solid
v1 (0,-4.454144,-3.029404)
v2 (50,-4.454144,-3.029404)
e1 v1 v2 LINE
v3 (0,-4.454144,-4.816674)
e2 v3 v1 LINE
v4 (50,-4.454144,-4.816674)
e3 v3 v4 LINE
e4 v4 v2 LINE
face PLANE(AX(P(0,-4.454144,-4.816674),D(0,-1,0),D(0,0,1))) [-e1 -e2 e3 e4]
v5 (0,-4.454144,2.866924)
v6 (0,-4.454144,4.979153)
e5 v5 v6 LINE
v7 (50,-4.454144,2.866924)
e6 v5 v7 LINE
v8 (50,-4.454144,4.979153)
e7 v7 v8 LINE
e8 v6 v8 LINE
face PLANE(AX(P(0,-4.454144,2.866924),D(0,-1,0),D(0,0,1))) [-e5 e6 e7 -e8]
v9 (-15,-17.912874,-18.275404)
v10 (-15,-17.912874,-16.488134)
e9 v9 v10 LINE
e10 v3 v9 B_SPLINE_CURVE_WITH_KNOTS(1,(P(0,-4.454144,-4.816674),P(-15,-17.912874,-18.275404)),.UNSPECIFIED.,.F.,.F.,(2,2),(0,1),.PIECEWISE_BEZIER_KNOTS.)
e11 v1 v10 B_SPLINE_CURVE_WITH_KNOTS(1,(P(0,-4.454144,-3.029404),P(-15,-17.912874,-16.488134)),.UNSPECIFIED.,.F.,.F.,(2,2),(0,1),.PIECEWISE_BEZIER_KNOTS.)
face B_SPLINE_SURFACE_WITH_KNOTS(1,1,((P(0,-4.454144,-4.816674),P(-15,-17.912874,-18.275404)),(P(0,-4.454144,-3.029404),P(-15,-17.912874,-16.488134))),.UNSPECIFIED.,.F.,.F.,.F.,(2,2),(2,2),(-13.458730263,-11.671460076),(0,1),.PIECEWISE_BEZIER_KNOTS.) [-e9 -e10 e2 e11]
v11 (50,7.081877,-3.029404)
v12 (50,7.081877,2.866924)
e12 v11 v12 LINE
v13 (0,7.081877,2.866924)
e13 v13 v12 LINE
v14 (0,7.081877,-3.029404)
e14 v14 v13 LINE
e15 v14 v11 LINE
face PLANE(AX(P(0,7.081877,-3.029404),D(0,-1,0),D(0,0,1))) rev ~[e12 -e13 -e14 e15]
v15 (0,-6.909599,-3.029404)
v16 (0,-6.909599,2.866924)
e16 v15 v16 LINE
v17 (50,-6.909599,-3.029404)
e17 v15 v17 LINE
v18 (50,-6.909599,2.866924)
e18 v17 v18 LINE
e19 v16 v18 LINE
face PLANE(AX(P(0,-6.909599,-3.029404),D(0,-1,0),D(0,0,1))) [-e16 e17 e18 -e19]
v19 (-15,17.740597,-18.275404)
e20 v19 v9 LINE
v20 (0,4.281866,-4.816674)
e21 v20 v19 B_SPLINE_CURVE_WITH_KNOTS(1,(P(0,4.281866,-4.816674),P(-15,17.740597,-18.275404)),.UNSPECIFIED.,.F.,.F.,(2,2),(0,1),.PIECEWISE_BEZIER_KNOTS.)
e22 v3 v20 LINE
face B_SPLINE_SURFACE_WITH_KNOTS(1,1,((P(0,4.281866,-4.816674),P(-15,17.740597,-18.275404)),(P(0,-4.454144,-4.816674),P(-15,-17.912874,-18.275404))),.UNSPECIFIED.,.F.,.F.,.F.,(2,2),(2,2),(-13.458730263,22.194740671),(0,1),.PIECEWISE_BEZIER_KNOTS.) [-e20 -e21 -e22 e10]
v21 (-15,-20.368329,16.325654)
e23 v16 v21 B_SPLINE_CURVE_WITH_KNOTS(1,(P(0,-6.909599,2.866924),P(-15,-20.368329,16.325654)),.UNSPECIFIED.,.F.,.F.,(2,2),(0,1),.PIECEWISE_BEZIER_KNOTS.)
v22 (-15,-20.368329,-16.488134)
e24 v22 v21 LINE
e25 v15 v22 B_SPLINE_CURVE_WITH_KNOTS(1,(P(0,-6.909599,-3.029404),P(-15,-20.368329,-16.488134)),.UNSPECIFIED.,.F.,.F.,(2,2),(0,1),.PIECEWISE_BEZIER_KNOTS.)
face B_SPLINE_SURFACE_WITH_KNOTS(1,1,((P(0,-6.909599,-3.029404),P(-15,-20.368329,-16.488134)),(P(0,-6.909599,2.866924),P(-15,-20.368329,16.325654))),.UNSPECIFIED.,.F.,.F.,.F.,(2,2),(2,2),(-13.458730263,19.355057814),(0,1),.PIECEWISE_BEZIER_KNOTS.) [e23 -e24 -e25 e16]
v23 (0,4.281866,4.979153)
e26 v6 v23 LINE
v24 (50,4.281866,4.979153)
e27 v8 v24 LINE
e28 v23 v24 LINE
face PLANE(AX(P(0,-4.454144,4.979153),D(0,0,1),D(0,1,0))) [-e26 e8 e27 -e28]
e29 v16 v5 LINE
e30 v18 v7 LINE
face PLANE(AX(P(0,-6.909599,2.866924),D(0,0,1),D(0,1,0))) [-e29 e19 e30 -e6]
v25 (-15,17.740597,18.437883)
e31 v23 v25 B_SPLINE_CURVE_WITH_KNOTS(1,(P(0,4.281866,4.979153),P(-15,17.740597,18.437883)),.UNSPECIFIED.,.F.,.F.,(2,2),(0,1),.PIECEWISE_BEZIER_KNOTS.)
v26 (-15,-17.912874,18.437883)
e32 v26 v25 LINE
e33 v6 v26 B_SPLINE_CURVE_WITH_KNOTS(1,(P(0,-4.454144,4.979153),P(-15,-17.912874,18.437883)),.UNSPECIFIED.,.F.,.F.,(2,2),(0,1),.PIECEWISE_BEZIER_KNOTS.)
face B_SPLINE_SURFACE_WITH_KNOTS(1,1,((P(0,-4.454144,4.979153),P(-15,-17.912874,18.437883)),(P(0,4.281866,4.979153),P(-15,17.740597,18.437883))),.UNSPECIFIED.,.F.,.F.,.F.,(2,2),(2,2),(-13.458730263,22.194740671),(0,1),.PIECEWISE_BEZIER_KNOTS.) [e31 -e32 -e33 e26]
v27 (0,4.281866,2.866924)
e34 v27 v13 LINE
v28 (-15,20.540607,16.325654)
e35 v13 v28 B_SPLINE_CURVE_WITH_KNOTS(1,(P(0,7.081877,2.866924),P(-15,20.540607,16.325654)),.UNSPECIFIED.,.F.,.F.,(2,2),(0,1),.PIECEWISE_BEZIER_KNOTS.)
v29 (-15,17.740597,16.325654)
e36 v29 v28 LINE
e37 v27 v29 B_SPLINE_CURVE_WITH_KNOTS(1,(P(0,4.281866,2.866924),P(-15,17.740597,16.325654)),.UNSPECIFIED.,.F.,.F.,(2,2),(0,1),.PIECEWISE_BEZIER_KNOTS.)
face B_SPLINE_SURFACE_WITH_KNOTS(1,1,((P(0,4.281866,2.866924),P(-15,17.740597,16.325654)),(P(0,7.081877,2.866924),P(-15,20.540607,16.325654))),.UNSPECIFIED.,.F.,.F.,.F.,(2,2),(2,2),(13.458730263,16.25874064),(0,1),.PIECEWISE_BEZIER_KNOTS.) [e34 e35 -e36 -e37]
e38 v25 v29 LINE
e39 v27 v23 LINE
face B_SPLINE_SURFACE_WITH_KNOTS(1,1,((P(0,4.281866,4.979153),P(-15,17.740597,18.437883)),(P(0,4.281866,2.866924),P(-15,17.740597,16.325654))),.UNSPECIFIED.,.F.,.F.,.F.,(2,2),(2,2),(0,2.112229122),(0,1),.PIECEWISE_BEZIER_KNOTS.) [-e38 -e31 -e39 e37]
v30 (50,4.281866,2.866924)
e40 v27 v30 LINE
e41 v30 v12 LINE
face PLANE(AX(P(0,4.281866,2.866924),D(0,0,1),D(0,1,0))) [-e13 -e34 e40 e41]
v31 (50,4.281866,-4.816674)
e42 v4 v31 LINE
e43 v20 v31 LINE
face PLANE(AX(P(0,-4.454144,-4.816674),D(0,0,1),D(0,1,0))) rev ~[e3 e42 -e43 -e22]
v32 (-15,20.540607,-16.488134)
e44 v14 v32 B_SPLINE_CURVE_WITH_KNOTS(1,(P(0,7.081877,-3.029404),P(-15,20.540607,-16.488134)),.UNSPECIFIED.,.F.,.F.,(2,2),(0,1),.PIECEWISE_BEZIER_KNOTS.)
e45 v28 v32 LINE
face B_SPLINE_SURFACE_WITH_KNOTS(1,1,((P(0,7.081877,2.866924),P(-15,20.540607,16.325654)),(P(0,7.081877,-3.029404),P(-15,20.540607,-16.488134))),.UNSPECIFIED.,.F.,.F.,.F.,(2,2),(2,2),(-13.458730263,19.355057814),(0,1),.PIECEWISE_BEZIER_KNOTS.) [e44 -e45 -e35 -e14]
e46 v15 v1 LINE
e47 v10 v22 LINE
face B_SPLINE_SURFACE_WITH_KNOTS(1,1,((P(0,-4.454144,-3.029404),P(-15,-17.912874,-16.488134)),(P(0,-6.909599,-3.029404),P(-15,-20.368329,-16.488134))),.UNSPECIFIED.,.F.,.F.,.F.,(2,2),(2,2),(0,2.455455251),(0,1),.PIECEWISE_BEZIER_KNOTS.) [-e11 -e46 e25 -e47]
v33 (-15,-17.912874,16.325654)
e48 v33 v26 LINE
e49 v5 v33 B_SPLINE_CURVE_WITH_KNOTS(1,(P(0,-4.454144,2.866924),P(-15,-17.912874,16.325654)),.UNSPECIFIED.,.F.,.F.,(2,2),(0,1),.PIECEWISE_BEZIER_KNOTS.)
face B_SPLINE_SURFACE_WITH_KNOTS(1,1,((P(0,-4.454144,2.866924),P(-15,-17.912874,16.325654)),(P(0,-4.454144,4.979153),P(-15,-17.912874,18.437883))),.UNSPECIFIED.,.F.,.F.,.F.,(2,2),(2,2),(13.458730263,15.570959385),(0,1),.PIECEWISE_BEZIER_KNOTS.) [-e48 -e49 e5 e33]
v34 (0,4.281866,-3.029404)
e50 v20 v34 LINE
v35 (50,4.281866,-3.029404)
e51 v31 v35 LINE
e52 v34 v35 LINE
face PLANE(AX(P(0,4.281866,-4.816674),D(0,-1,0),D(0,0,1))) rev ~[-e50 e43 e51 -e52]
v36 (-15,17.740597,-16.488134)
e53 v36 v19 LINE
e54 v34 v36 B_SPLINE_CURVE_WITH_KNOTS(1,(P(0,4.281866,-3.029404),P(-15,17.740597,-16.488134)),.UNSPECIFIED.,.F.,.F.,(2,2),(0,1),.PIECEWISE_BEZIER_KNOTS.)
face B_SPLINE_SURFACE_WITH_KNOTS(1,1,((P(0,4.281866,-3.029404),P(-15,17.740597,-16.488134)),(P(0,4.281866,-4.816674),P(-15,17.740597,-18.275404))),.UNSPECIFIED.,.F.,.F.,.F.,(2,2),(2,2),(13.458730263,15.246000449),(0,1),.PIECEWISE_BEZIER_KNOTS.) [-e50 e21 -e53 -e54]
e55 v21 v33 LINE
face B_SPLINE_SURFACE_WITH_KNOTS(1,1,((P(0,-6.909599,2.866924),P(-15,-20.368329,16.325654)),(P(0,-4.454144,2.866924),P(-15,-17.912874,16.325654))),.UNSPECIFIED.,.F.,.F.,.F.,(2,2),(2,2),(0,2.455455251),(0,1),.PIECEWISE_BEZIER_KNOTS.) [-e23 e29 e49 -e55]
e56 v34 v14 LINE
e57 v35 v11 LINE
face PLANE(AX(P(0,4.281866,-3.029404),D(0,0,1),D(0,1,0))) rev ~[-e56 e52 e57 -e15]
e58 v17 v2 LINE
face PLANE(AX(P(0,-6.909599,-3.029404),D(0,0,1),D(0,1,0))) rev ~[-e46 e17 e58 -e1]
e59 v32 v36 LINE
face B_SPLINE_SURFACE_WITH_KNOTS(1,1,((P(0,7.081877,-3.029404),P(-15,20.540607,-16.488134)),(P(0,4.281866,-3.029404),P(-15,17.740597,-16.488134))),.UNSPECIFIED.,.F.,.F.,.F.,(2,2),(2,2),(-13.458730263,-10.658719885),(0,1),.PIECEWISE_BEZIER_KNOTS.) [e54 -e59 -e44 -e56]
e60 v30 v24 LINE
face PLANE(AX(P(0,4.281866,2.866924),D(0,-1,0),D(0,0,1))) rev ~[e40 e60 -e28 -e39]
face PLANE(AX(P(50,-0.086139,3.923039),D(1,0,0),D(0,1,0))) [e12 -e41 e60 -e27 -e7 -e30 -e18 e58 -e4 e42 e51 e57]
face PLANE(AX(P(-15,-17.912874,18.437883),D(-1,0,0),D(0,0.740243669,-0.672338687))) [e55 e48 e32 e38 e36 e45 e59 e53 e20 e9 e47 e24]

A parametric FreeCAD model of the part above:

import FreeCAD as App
import Part
import Sketcher
from FreeCAD import Vector
Q = App.Units.Quantity

doc = App.newDocument("Part")
params = doc.addObject("Spreadsheet::Sheet", "Params")
for row, (alias, value) in enumerate([
    ("pad1_length", "50 mm"),
    ("pad2_length", "15 mm"),
    ("pad2_taper", "41.9 deg"),
], start=1):
    params.set(f"A{row}", alias)
    params.set(f"B{row}", "=" + value)
    params.setAlias(f"B{row}", alias)

body = doc.addObject("PartDesign::Body", "Body")

sketch1 = doc.addObject("Sketcher::SketchObject", "Sketch")
body.addObject(sketch1)
sketch1.AttachmentSupport = (doc.YZ_Plane, [""])
sketch1.MapMode = "FlatFace"
sketch1.addGeometry([
    Part.LineSegment(Vector(-4.454144, 4.979153, 0), Vector(-4.454144, 2.866924, 0)),
    Part.LineSegment(Vector(-4.454144, 2.866924, 0), Vector(-6.909599, 2.866924, 0)),
    Part.LineSegment(Vector(-6.909599, 2.866924, 0), Vector(-6.909599, -3.029404, 0)),
    Part.LineSegment(Vector(-6.909599, -3.029404, 0), Vector(-4.454144, -3.029404, 0)),
    Part.LineSegment(Vector(-4.454144, -3.029404, 0), Vector(-4.454144, -4.816674, 0)),
    Part.LineSegment(Vector(-4.454144, -4.816674, 0), Vector(4.281866, -4.816674, 0)),
    Part.LineSegment(Vector(4.281866, -4.816674, 0), Vector(4.281866, -3.029404, 0)),
    Part.LineSegment(Vector(4.281866, -3.029404, 0), Vector(7.081877, -3.029404, 0)),
    Part.LineSegment(Vector(7.081877, -3.029404, 0), Vector(7.081877, 2.866924, 0)),
    Part.LineSegment(Vector(7.081877, 2.866924, 0), Vector(4.281866, 2.866924, 0)),
    Part.LineSegment(Vector(4.281866, 2.866924, 0), Vector(4.281866, 4.979153, 0)),
    Part.LineSegment(Vector(4.281866, 4.979153, 0), Vector(-4.454144, 4.979153, 0)),
], False)
sketch1.addConstraint([
    Sketcher.Constraint("Coincident", 0, 2, 1, 1),
    Sketcher.Constraint("Coincident", 1, 2, 2, 1),
    Sketcher.Constraint("Coincident", 2, 2, 3, 1),
    Sketcher.Constraint("Coincident", 3, 2, 4, 1),
    Sketcher.Constraint("Coincident", 4, 2, 5, 1),
    Sketcher.Constraint("Coincident", 5, 2, 6, 1),
    Sketcher.Constraint("Coincident", 6, 2, 7, 1),
    Sketcher.Constraint("Coincident", 7, 2, 8, 1),
    Sketcher.Constraint("Coincident", 8, 2, 9, 1),
    Sketcher.Constraint("Coincident", 9, 2, 10, 1),
    Sketcher.Constraint("Coincident", 10, 2, 11, 1),
    Sketcher.Constraint("Coincident", 11, 2, 0, 1),
    Sketcher.Constraint("Vertical", 0),
    Sketcher.Constraint("Horizontal", 1),
    Sketcher.Constraint("Vertical", 2),
    Sketcher.Constraint("Horizontal", 3),
    Sketcher.Constraint("Vertical", 4),
    Sketcher.Constraint("Horizontal", 5),
    Sketcher.Constraint("Vertical", 6),
    Sketcher.Constraint("Horizontal", 7),
    Sketcher.Constraint("Vertical", 8),
    Sketcher.Constraint("Horizontal", 9),
    Sketcher.Constraint("Vertical", 10),
    Sketcher.Constraint("Horizontal", 11),
    Sketcher.Constraint("Horizontal", 3, 2, 6, 2),
    Sketcher.Constraint("Horizontal", 1, 2, 8, 2),
    Sketcher.Constraint("Vertical", 0, 2, 3, 2),
    Sketcher.Constraint("Vertical", 6, 2, 9, 2),
    Sketcher.Constraint("DistanceX", 5, 1, 5, 2, Q("8.73601 mm")),
    Sketcher.Constraint("DistanceX", 7, 1, 7, 2, Q("2.80001 mm")),
    Sketcher.Constraint("DistanceY", 0, 2, 0, 1, Q("2.112229 mm")),
    Sketcher.Constraint("DistanceY", 4, 2, 4, 1, Q("1.78727 mm")),
    Sketcher.Constraint("DistanceX", 1, 2, -1, 1, Q("6.909599 mm")),
    Sketcher.Constraint("DistanceX", 1, 2, 1, 1, Q("2.455455 mm")),
    Sketcher.Constraint("DistanceY", 2, 2, 2, 1, Q("5.896328 mm")),
    Sketcher.Constraint("DistanceY", -1, 1, 0, 2, Q("2.866924 mm")),
])
pad1 = doc.addObject("PartDesign::Pad", "Pad")
body.addObject(pad1)
pad1.Profile = sketch1
pad1.setExpression("Length", "Params.pad1_length")

sketch2 = doc.addObject("Sketcher::SketchObject", "Sketch001")
body.addObject(sketch2)
sketch2.AttachmentSupport = (doc.YZ_Plane, [""])
sketch2.MapMode = "FlatFace"
sketch2.addGeometry([
    Part.LineSegment(Vector(-4.454144, 4.979153, 0), Vector(4.281866, 4.979153, 0)),
    Part.LineSegment(Vector(4.281866, 4.979153, 0), Vector(4.281866, 2.866924, 0)),
    Part.LineSegment(Vector(4.281866, 2.866924, 0), Vector(7.081877, 2.866924, 0)),
    Part.LineSegment(Vector(7.081877, 2.866924, 0), Vector(7.081877, -3.029404, 0)),
    Part.LineSegment(Vector(7.081877, -3.029404, 0), Vector(4.281866, -3.029404, 0)),
    Part.LineSegment(Vector(4.281866, -3.029404, 0), Vector(4.281866, -4.816674, 0)),
    Part.LineSegment(Vector(4.281866, -4.816674, 0), Vector(-4.454144, -4.816674, 0)),
    Part.LineSegment(Vector(-4.454144, -4.816674, 0), Vector(-4.454144, -3.029404, 0)),
    Part.LineSegment(Vector(-4.454144, -3.029404, 0), Vector(-6.909599, -3.029404, 0)),
    Part.LineSegment(Vector(-6.909599, -3.029404, 0), Vector(-6.909599, 2.866924, 0)),
    Part.LineSegment(Vector(-6.909599, 2.866924, 0), Vector(-4.454144, 2.866924, 0)),
    Part.LineSegment(Vector(-4.454144, 2.866924, 0), Vector(-4.454144, 4.979153, 0)),
], False)
sketch2.addConstraint([
    Sketcher.Constraint("Coincident", 0, 2, 1, 1),
    Sketcher.Constraint("Coincident", 1, 2, 2, 1),
    Sketcher.Constraint("Coincident", 2, 2, 3, 1),
    Sketcher.Constraint("Coincident", 3, 2, 4, 1),
    Sketcher.Constraint("Coincident", 4, 2, 5, 1),
    Sketcher.Constraint("Coincident", 5, 2, 6, 1),
    Sketcher.Constraint("Coincident", 6, 2, 7, 1),
    Sketcher.Constraint("Coincident", 7, 2, 8, 1),
    Sketcher.Constraint("Coincident", 8, 2, 9, 1),
    Sketcher.Constraint("Coincident", 9, 2, 10, 1),
    Sketcher.Constraint("Coincident", 10, 2, 11, 1),
    Sketcher.Constraint("Coincident", 11, 2, 0, 1),
    Sketcher.Constraint("Horizontal", 0),
    Sketcher.Constraint("Vertical", 1),
    Sketcher.Constraint("Horizontal", 2),
    Sketcher.Constraint("Vertical", 3),
    Sketcher.Constraint("Horizontal", 4),
    Sketcher.Constraint("Vertical", 5),
    Sketcher.Constraint("Horizontal", 6),
    Sketcher.Constraint("Vertical", 7),
    Sketcher.Constraint("Horizontal", 8),
    Sketcher.Constraint("Vertical", 9),
    Sketcher.Constraint("Horizontal", 10),
    Sketcher.Constraint("Vertical", 11),
    Sketcher.Constraint("Horizontal", 4, 2, 7, 2),
    Sketcher.Constraint("Horizontal", 2, 2, 9, 2),
    Sketcher.Constraint("Vertical", 1, 2, 4, 2),
    Sketcher.Constraint("Vertical", 7, 2, 10, 2),
    Sketcher.Constraint("DistanceX", 0, 1, 0, 2, Q("8.73601 mm")),
    Sketcher.Constraint("DistanceX", 2, 1, 2, 2, Q("2.80001 mm")),
    Sketcher.Constraint("DistanceY", 1, 2, 1, 1, Q("2.112229 mm")),
    Sketcher.Constraint("DistanceY", 5, 2, 5, 1, Q("1.78727 mm")),
    Sketcher.Constraint("DistanceX", 8, 2, -1, 1, Q("6.909599 mm")),
    Sketcher.Constraint("DistanceX", 8, 2, 8, 1, Q("2.455455 mm")),
    Sketcher.Constraint("DistanceY", 3, 2, 3, 1, Q("5.896328 mm")),
    Sketcher.Constraint("DistanceY", -1, 1, 0, 2, Q("4.979153 mm")),
])
pad2 = doc.addObject("PartDesign::Pad", "Pad001")
body.addObject(pad2)
pad2.Profile = sketch2
pad2.setExpression("Length", "Params.pad2_length")
pad2.Reversed = True
pad2.setExpression("TaperAngle", "Params.pad2_taper")

doc.recompute()
